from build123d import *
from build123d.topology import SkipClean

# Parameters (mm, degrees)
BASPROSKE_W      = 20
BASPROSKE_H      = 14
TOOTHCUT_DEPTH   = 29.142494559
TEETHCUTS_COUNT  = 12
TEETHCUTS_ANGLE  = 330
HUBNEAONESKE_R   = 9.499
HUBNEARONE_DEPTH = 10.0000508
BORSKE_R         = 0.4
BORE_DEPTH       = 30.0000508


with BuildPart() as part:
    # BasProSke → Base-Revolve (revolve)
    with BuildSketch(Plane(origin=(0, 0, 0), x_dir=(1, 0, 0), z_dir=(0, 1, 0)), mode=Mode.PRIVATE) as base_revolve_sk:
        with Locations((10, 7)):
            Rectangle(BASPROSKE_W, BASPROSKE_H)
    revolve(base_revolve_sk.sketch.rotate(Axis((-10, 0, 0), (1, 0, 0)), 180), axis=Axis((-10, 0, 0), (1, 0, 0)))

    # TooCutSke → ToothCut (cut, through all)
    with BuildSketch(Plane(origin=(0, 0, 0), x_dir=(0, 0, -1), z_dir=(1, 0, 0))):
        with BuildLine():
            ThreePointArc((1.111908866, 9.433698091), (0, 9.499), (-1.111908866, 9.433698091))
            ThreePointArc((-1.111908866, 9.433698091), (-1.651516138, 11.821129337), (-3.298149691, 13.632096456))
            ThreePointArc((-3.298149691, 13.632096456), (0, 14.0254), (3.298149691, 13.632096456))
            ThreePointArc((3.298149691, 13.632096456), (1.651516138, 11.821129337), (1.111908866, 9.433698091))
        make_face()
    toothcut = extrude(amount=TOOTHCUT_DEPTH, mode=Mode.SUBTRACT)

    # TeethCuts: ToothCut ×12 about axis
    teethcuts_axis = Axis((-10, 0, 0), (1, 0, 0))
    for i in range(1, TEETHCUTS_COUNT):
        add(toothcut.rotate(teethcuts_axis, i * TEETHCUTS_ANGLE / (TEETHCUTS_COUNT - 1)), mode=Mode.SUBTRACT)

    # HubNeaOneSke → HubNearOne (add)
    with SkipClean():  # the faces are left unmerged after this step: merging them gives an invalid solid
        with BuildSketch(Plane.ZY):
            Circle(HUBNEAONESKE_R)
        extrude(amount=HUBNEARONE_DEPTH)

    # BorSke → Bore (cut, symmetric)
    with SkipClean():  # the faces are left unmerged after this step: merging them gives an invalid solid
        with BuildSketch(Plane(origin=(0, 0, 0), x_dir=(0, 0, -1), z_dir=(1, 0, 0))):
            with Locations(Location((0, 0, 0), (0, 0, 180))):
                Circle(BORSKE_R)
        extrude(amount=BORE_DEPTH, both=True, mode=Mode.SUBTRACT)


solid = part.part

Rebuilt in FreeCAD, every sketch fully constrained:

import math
import FreeCAD as App
import Part
import Sketcher

V = App.Vector
Q = App.Units.Quantity


def add_polygon(sketch, points):
    """Adds a closed chain of lines whose ends are joined by coincident constraints."""
    first, n = sketch.GeometryCount, len(points)
    for a, b in zip(points, points[1:] + points[:1]):
        sketch.addGeometry(Part.LineSegment(App.Vector(*a, 0), App.Vector(*b, 0)), False)
    for i in range(n):
        sketch.addConstraint(Sketcher.Constraint("Coincident", first + i, 2, first + (i + 1) % n, 1))

doc = App.newDocument("Part")
body = doc.addObject("PartDesign::Body", "Body")

# Sketch on XZ plane
sketch1 = body.newObject("Sketcher::SketchObject", "Sketch")
sketch1.AttachmentSupport = (doc.getObject("XZ_Plane"), [""])
sketch1.MapMode = "FlatFace"
add_polygon(sketch1, [(0, -14), (0, 0), (20, 0), (20, -14)])  # lines 0-3
sketch1.addConstraint([
    Sketcher.Constraint("Vertical", 0),
    Sketcher.Constraint("Horizontal", 1),
    Sketcher.Constraint("Vertical", 2),
    Sketcher.Constraint("Horizontal", 3),
    Sketcher.Constraint("Coincident", 0, 2, -1, 1),
    Sketcher.Constraint("DistanceX", 1, 1, 1, 2, Q("20 mm")),
    Sketcher.Constraint("DistanceY", 0, 1, 0, 2, Q("14 mm")),
])
revolution = body.newObject("PartDesign::Revolution", "Revolution")
revolution.Profile = sketch1
revolution.ReferenceAxis = (sketch1, ["H_Axis"])
revolution.Angle = 360

# Sketch on YZ plane
sketch2 = body.newObject("Sketcher::SketchObject", "Sketch001")
sketch2.AttachmentSupport = (doc.getObject("YZ_Plane"), [""])
sketch2.MapMode = "FlatFace"
sketch2.addGeometry([
    Part.ArcOfCircle(Part.Circle(V(0, 0, 0), V(0, 0, 1), 9.499), math.radians(-6.722189), math.radians(6.722189)),
    Part.ArcOfCircle(Part.Circle(V(9.604183, -5.90888, 0), V(0, 0, 1), 4.8), math.radians(32.949676), math.radians(92.035443)),
    Part.ArcOfCircle(Part.Circle(V(0, 0, 0), V(0, 0, 1), 14.0254), math.radians(-13.600788), math.radians(13.600788)),
    Part.ArcOfCircle(Part.Circle(V(9.604183, 5.90888, 0), V(0, 0, 1), 4.8), math.radians(-92.035443), math.radians(-32.949676)),
], False)
sketch2.addConstraint([
    Sketcher.Constraint("Coincident", 0, 1, 1, 2),
    Sketcher.Constraint("Coincident", 1, 1, 2, 1),
    Sketcher.Constraint("Coincident", 2, 2, 3, 2),
    Sketcher.Constraint("Coincident", 3, 1, 0, 2),
    Sketcher.Constraint("Coincident", 0, 3, -1, 1),
    Sketcher.Constraint("Coincident", 2, 3, -1, 1),
    Sketcher.Constraint("Equal", 1, 3),
    Sketcher.Constraint("Symmetric", 1, 3, 3, 3, -1),
    Sketcher.Constraint("Radius", 1, Q("4.8 mm")),
    Sketcher.Constraint("Radius", 0, Q("9.499 mm")),
    Sketcher.Constraint("Radius", 2, Q("14.0254 mm")),
    Sketcher.Constraint("DistanceX", -1, 1, 0, 1, Q("9.433698 mm")),
    Sketcher.Constraint("DistanceX", 0, 1, 1, 1, Q("4.198398 mm")),
])
pocket1 = body.newObject("PartDesign::Pocket", "Pocket")
pocket1.Profile = sketch2
pocket1.Type = "ThroughAll"
pocket1.Reversed = True
doc.recompute()

polarpattern = body.newObject("PartDesign::PolarPattern", "PolarPattern")
polarpattern.Originals = [pocket1]
polarpattern.Axis = (doc.getObject("X_Axis"), [""])
polarpattern.Angle = 360
polarpattern.Occurrences = 12
body.Tip = polarpattern

# Sketch on YZ plane
sketch3 = body.newObject("Sketcher::SketchObject", "Sketch002")
sketch3.AttachmentSupport = (doc.getObject("YZ_Plane"), [""])
sketch3.MapMode = "FlatFace"
sketch3.addGeometry(Part.Circle(V(0, 0, 0), V(0, 0, 1), 9.499), False)
sketch3.addConstraint([
    Sketcher.Constraint("Coincident", 0, 3, -1, 1),
    Sketcher.Constraint("Diameter", 0, Q("18.998 mm")),
])
pad1 = body.newObject("PartDesign::Pad", "Pad")
pad1.Profile = sketch3
pad1.Length = 10.000051
pad1.Reversed = True

# Sketch on YZ plane
sketch4 = body.newObject("Sketcher::SketchObject", "Sketch003")
sketch4.AttachmentSupport = (doc.getObject("YZ_Plane"), [""])
sketch4.MapMode = "FlatFace"
sketch4.addGeometry(Part.Circle(V(0, 0, 0), V(0, 0, 1), 0.4), False)
sketch4.addConstraint([
    Sketcher.Constraint("Coincident", 0, 3, -1, 1),
    Sketcher.Constraint("Diameter", 0, Q("0.8 mm")),
])
pocket2 = body.newObject("PartDesign::Pocket", "Pocket001")
pocket2.Profile = sketch4
pocket2.Length = 60.000102
pocket2.Midplane = True

doc.recompute()
